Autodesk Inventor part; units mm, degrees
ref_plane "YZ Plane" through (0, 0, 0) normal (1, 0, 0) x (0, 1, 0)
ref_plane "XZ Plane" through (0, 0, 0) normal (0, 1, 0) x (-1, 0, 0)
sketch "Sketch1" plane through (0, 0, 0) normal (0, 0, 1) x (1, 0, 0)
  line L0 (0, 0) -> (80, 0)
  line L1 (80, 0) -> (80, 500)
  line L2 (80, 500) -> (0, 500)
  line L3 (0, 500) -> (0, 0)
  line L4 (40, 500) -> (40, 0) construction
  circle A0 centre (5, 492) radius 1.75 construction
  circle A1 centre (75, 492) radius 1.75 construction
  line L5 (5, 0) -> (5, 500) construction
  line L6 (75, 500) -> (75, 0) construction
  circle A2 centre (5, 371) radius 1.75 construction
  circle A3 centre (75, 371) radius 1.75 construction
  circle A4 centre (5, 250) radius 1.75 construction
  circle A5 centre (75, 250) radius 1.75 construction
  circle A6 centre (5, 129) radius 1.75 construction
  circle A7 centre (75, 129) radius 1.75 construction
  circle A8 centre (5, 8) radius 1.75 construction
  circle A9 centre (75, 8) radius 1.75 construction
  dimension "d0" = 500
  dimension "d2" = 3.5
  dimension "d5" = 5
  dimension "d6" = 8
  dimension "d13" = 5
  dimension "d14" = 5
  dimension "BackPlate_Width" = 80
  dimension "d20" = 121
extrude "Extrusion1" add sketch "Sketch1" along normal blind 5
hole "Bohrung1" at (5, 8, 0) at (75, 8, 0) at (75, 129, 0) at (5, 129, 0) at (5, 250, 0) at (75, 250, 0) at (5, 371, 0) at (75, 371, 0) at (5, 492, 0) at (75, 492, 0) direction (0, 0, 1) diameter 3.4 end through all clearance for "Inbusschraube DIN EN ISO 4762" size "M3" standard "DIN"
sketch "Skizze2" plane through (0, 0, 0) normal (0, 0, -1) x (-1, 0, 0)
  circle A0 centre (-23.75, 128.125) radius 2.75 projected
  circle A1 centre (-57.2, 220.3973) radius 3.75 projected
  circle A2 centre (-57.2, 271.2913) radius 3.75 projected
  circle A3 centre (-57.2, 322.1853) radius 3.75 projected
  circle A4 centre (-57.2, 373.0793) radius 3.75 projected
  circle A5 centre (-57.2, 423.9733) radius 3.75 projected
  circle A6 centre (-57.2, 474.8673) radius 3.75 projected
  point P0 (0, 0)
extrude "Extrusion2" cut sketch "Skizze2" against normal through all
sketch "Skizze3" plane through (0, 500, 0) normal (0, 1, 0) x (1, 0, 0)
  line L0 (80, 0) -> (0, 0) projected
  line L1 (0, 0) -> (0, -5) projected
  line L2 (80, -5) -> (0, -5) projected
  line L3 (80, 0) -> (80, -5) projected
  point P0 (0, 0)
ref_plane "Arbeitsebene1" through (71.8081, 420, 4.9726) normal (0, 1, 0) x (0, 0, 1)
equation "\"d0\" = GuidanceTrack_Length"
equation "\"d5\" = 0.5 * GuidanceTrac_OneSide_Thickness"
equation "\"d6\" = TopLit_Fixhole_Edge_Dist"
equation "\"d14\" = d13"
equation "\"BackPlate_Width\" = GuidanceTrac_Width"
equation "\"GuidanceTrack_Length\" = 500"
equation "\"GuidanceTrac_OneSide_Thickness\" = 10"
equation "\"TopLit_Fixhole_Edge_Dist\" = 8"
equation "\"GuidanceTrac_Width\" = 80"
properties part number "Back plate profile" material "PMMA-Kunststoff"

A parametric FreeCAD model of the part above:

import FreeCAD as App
import Part
import Sketcher

V = App.Vector
Q = App.Units.Quantity

doc = App.newDocument("Part")
body = doc.addObject("PartDesign::Body", "Body")

# Sketch on XY plane
sketch1 = body.newObject("Sketcher::SketchObject", "Sketch")
sketch1.AttachmentSupport = (doc.getObject("XY_Plane"), [""])
sketch1.MapMode = "FlatFace"
sketch1.addGeometry([
    Part.LineSegment(V(0, 500, 0), V(0, 0, 0)),
    Part.LineSegment(V(0, 0, 0), V(80, 0, 0)),
    Part.LineSegment(V(80, 0, 0), V(80, 500, 0)),
    Part.LineSegment(V(80, 500, 0), V(0, 500, 0)),
], False)
sketch1.addConstraint([
    Sketcher.Constraint("Coincident", 0, 2, 1, 1),
    Sketcher.Constraint("Coincident", 1, 2, 2, 1),
    Sketcher.Constraint("Coincident", 2, 2, 3, 1),
    Sketcher.Constraint("Coincident", 3, 2, 0, 1),
    Sketcher.Constraint("Vertical", 0),
    Sketcher.Constraint("Horizontal", 1),
    Sketcher.Constraint("Vertical", 2),
    Sketcher.Constraint("Horizontal", 3),
    Sketcher.Constraint("Coincident", 0, 2, -1, 1),
    Sketcher.Constraint("DistanceX", 1, 1, 1, 2, Q("80 mm")),
    Sketcher.Constraint("DistanceY", 0, 2, 0, 1, Q("500 mm")),
])
pad1 = body.newObject("PartDesign::Pad", "Pad")
pad1.Profile = sketch1
pad1.Length = 5

# Sketch on XY plane
sketch2 = body.newObject("Sketcher::SketchObject", "Sketch001")
sketch2.AttachmentSupport = (doc.getObject("XY_Plane"), [""])
sketch2.MapMode = "FlatFace"
sketch2.addGeometry([
    Part.Circle(V(5, 8, 0), V(0, 0, 1), 1.7),  # 0
    Part.Circle(V(75, 8, 0), V(0, 0, 1), 1.7),  # 1
    Part.Circle(V(75, 129, 0), V(0, 0, 1), 1.7),  # 2
    Part.Circle(V(5, 129, 0), V(0, 0, 1), 1.7),  # 3
    Part.Circle(V(5, 250, 0), V(0, 0, 1), 1.7),  # 4
    Part.Circle(V(75, 250, 0), V(0, 0, 1), 1.7),  # 5
    Part.Circle(V(5, 371, 0), V(0, 0, 1), 1.7),  # 6
    Part.Circle(V(75, 371, 0), V(0, 0, 1), 1.7),  # 7
    Part.Circle(V(5, 492, 0), V(0, 0, 1), 1.7),  # 8
    Part.Circle(V(75, 492, 0), V(0, 0, 1), 1.7),  # 9
], False)
sketch2.addConstraint([
    Sketcher.Constraint("Equal", 0, 1),
    Sketcher.Constraint("Equal", 1, 2),
    Sketcher.Constraint("Equal", 2, 3),
    Sketcher.Constraint("Equal", 3, 4),
    Sketcher.Constraint("Equal", 4, 5),
    Sketcher.Constraint("Equal", 5, 6),
    Sketcher.Constraint("Equal", 6, 7),
    Sketcher.Constraint("Equal", 7, 8),
    Sketcher.Constraint("Equal", 8, 9),
    Sketcher.Constraint("Horizontal", 0, 3, 1, 3),
    Sketcher.Constraint("Horizontal", 2, 3, 3, 3),
    Sketcher.Constraint("Horizontal", 4, 3, 5, 3),
    Sketcher.Constraint("Horizontal", 6, 3, 7, 3),
    Sketcher.Constraint("Horizontal", 8, 3, 9, 3),
    Sketcher.Constraint("Vertical", 1, 3, 2, 3),
    Sketcher.Constraint("Vertical", 0, 3, 3, 3),
    Sketcher.Constraint("Vertical", 3, 3, 4, 3),
    Sketcher.Constraint("Vertical", 2, 3, 5, 3),
    Sketcher.Constraint("Vertical", 4, 3, 6, 3),
    Sketcher.Constraint("Vertical", 5, 3, 7, 3),
    Sketcher.Constraint("Vertical", 6, 3, 8, 3),
    Sketcher.Constraint("Vertical", 7, 3, 9, 3),
    Sketcher.Constraint("Diameter", 0, Q("3.4 mm")),
    Sketcher.Constraint("DistanceX", -1, 1, 0, 3, Q("5 mm")),
    Sketcher.Constraint("DistanceY", -1, 1, 0, 3, Q("8 mm")),
    Sketcher.Constraint("DistanceX", -1, 1, 1, 3, Q("75 mm")),
    Sketcher.Constraint("DistanceY", -1, 1, 2, 3, Q("129 mm")),
    Sketcher.Constraint("DistanceY", -1, 1, 4, 3, Q("250 mm")),
    Sketcher.Constraint("DistanceY", -1, 1, 6, 3, Q("371 mm")),
    Sketcher.Constraint("DistanceY", -1, 1, 8, 3, Q("492 mm")),
])
doc.recompute()
hole = body.newObject("PartDesign::Hole", "Hole")
hole.Profile = sketch2
hole.ThreadType = "None"
hole.Diameter = 3.4
hole.DepthType = "ThroughAll"
hole.Reversed = True

# Sketch on XY plane
sketch3 = body.newObject("Sketcher::SketchObject", "Sketch002")
sketch3.AttachmentSupport = (doc.getObject("XY_Plane"), [""])
sketch3.MapMode = "FlatFace"
sketch3.addGeometry([
    Part.Circle(V(23.8, 128.1, 0), V(0, 0, 1), 2.8),  # 0
    Part.Circle(V(57.2, 220.4, 0), V(0, 0, 1), 3.8),  # 1
    Part.Circle(V(57.2, 271.3, 0), V(0, 0, 1), 3.8),  # 2
    Part.Circle(V(57.2, 322.2, 0), V(0, 0, 1), 3.8),  # 3
    Part.Circle(V(57.2, 373.1, 0), V(0, 0, 1), 3.8),  # 4
    Part.Circle(V(57.2, 424, 0), V(0, 0, 1), 3.8),  # 5
    Part.Circle(V(57.2, 474.9, 0), V(0, 0, 1), 3.8),  # 6
], False)
sketch3.addConstraint([
    Sketcher.Constraint("Equal", 1, 2),
    Sketcher.Constraint("Equal", 2, 3),
    Sketcher.Constraint("Equal", 3, 4),
    Sketcher.Constraint("Equal", 4, 5),
    Sketcher.Constraint("Equal", 5, 6),
    Sketcher.Constraint("Vertical", 1, 3, 2, 3),
    Sketcher.Constraint("Vertical", 2, 3, 3, 3),
    Sketcher.Constraint("Vertical", 3, 3, 4, 3),
    Sketcher.Constraint("Vertical", 4, 3, 5, 3),
    Sketcher.Constraint("Vertical", 5, 3, 6, 3),
    Sketcher.Constraint("Diameter", 0, Q("5.5 mm")),
    Sketcher.Constraint("Diameter", 1, Q("7.5 mm")),
    Sketcher.Constraint("DistanceX", -1, 1, 1, 3, Q("57.2 mm")),
    Sketcher.Constraint("DistanceX", -1, 1, 0, 3, Q("23.75 mm")),
    Sketcher.Constraint("DistanceY", 1, 3, 6, 3, Q("254.47 mm")),
    Sketcher.Constraint("DistanceY", -1, 1, 0, 3, Q("128.125 mm")),
    Sketcher.Constraint("DistanceY", 1, 3, 2, 3, Q("50.894 mm")),
    Sketcher.Constraint("DistanceY", 2, 3, 3, 3, Q("50.894 mm")),
    Sketcher.Constraint("DistanceY", 3, 3, 4, 3, Q("50.894 mm")),
    Sketcher.Constraint("DistanceY", 4, 3, 5, 3, Q("50.894 mm")),
    Sketcher.Constraint("DistanceY", -1, 1, 1, 3, Q("220.3973 mm")),
])
pocket1 = body.newObject("PartDesign::Pocket", "Pocket")
pocket1.Profile = sketch3
pocket1.Type = "ThroughAll"
pocket1.Reversed = True

doc.recompute()
